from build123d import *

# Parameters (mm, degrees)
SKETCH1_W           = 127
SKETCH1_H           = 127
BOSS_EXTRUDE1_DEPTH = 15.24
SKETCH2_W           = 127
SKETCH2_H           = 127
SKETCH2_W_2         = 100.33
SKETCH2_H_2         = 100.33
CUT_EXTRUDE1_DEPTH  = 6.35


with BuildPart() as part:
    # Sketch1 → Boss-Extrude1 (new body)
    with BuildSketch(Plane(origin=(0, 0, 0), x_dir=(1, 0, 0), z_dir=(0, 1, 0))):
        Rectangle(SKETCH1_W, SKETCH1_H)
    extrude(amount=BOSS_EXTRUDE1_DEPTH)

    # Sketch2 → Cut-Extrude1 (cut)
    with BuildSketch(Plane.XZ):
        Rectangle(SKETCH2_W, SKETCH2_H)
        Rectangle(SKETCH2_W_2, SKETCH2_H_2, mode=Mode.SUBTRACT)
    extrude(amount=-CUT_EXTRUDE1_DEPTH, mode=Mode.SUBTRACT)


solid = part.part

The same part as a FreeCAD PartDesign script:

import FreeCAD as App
import Part
import Sketcher
Q = App.Units.Quantity


def add_polygon(sketch, points):
    """Adds a closed chain of lines whose ends are joined by coincident constraints."""
    first, n = sketch.GeometryCount, len(points)
    for a, b in zip(points, points[1:] + points[:1]):
        sketch.addGeometry(Part.LineSegment(App.Vector(*a, 0), App.Vector(*b, 0)), False)
    for i in range(n):
        sketch.addConstraint(Sketcher.Constraint("Coincident", first + i, 2, first + (i + 1) % n, 1))

doc = App.newDocument("Part")
body = doc.addObject("PartDesign::Body", "Body")

# Sketch on XZ plane
sketch1 = doc.addObject("Sketcher::SketchObject", "Sketch")
body.addObject(sketch1)
sketch1.AttachmentSupport = (doc.XZ_Plane, [""])
sketch1.MapMode = "FlatFace"
add_polygon(sketch1, [(-64, -64), (-64, 64), (64, 64), (64, -64)])  # lines 0-3
sketch1.addConstraint(Sketcher.Constraint("Vertical", 0))
sketch1.addConstraint(Sketcher.Constraint("Horizontal", 1))
sketch1.addConstraint(Sketcher.Constraint("Vertical", 2))
sketch1.addConstraint(Sketcher.Constraint("Horizontal", 3))
sketch1.addConstraint(Sketcher.Constraint("Symmetric", 0, 2, 2, 2, -1, 1))
sketch1.addConstraint(Sketcher.Constraint("Equal", 3, 0))
sketch1.addConstraint(Sketcher.Constraint("DistanceX", 1, 1, 1, 2, Q("5 in")))
pad1 = doc.addObject("PartDesign::Pad", "Pad")
body.addObject(pad1)
pad1.Profile = sketch1
pad1.Length = Q("0.6 in")
pad1.Reversed = True

# Sketch on XZ plane
sketch2 = doc.addObject("Sketcher::SketchObject", "Sketch001")
body.addObject(sketch2)
sketch2.AttachmentSupport = (doc.XZ_Plane, [""])
sketch2.MapMode = "FlatFace"
add_polygon(sketch2, [(-64, 64), (-64, -64), (64, -64), (64, 64)])  # lines 0-3
add_polygon(sketch2, [(50, -50), (-50, -50), (-50, 50), (50, 50)])  # lines 4-7
sketch2.addConstraint(Sketcher.Constraint("Vertical", 0))
sketch2.addConstraint(Sketcher.Constraint("Horizontal", 1))
sketch2.addConstraint(Sketcher.Constraint("Vertical", 2))
sketch2.addConstraint(Sketcher.Constraint("Horizontal", 3))
sketch2.addConstraint(Sketcher.Constraint("Horizontal", 4))
sketch2.addConstraint(Sketcher.Constraint("Vertical", 5))
sketch2.addConstraint(Sketcher.Constraint("Horizontal", 6))
sketch2.addConstraint(Sketcher.Constraint("Vertical", 7))
sketch2.addConstraint(Sketcher.Constraint("Symmetric", 0, 2, 2, 2, -1, 1))
sketch2.addConstraint(Sketcher.Constraint("Symmetric", 4, 2, 6, 2, -1, 1))
sketch2.addConstraint(Sketcher.Constraint("Equal", 3, 0))
sketch2.addConstraint(Sketcher.Constraint("Equal", 6, 5))
sketch2.addConstraint(Sketcher.Constraint("DistanceX", 1, 1, 1, 2, Q("5 in")))
sketch2.addConstraint(Sketcher.Constraint("DistanceX", 4, 2, 4, 1, Q("3.95 in")))
pocket1 = doc.addObject("PartDesign::Pocket", "Pocket")
body.addObject(pocket1)
pocket1.Profile = sketch2
pocket1.Length = Q("0.25 in")

doc.recompute()
